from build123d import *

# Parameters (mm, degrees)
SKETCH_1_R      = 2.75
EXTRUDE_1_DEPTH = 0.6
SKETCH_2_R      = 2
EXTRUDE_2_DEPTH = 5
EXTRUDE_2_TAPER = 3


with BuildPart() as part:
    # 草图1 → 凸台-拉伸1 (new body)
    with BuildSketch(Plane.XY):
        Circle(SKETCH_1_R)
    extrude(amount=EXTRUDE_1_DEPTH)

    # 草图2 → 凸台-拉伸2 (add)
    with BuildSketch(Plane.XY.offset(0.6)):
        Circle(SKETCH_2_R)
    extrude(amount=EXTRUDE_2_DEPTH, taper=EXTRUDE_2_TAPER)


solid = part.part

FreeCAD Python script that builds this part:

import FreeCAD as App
import Part
import Sketcher
Q = App.Units.Quantity

doc = App.newDocument("Part")
body = doc.addObject("PartDesign::Body", "Body")

sketch1 = doc.addObject("Sketcher::SketchObject", "Sketch")
body.addObject(sketch1)
sketch1.AttachmentSupport = (doc.XY_Plane, [""])
sketch1.MapMode = "FlatFace"
sketch1.addGeometry(Part.Circle(App.Vector(0, 0, 0), App.Vector(0, 0, 1), 2.8), False)
sketch1.addConstraint([
    Sketcher.Constraint("Coincident", 0, 3, -1, 1),
    Sketcher.Constraint("Diameter", 0, Q("5.5 mm")),
])
pad1 = doc.addObject("PartDesign::Pad", "Pad")
body.addObject(pad1)
pad1.Profile = sketch1
pad1.Length = 0.6

sketch2 = doc.addObject("Sketcher::SketchObject", "Sketch001")
body.addObject(sketch2)
sketch2.AttachmentSupport = (doc.XY_Plane, [""])
sketch2.MapMode = "FlatFace"
sketch2.AttachmentOffset = App.Placement(App.Vector(0, 0, 0.6), App.Rotation())
sketch2.addGeometry(Part.Circle(App.Vector(0, 0, 0), App.Vector(0, 0, 1), 2), False)
sketch2.addConstraint([
    Sketcher.Constraint("Coincident", 0, 3, -1, 1),
    Sketcher.Constraint("Diameter", 0, Q("4 mm")),
])
pad2 = doc.addObject("PartDesign::Pad", "Pad001")
body.addObject(pad2)
pad2.Profile = sketch2
pad2.Length = 5
pad2.TaperAngle = -3

doc.recompute()
